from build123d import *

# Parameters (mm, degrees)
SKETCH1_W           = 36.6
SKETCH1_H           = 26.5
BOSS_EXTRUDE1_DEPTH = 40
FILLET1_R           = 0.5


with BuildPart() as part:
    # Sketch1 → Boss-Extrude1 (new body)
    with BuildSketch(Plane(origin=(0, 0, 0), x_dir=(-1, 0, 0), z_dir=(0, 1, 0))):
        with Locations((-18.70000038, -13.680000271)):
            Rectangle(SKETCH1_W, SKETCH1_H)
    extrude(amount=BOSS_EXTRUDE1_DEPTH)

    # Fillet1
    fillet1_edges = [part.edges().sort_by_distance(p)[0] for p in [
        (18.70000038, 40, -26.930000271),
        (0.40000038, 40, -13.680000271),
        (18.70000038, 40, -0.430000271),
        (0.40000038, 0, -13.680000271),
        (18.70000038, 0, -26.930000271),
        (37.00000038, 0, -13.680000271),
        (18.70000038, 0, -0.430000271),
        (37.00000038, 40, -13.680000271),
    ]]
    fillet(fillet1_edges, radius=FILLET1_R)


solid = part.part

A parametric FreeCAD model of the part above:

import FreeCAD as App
import Part
import Sketcher

V = App.Vector


def edges_at(feature, points):
    """Names of the edges that pass closest to the given points."""
    edges = feature.Shape.Edges
    near = lambda p: min(range(len(edges)), key=lambda i: edges[i].distToShape(Part.Vertex(*p))[0])
    return sorted({f"Edge{near(p) + 1}" for p in points})

doc = App.newDocument("Part")
body = doc.addObject("PartDesign::Body", "Body")

# Sketch on XZ plane
sketch1 = body.newObject("Sketcher::SketchObject", "Sketch")
sketch1.AttachmentSupport = (doc.getObject("XZ_Plane"), [""])
sketch1.MapMode = "FlatFace"
sketch1.addGeometry([
    Part.LineSegment(V(37, 0, 0), V(37, -27, 0)),
    Part.LineSegment(V(37, -27, 0), V(0, -27, 0)),
    Part.LineSegment(V(0, -27, 0), V(0, 0, 0)),
    Part.LineSegment(V(0, 0, 0), V(37, 0, 0)),
], False)
sketch1.addConstraint([
    Sketcher.Constraint("Coincident", 0, 2, 1, 1),
    Sketcher.Constraint("Coincident", 1, 2, 2, 1),
    Sketcher.Constraint("Coincident", 2, 2, 3, 1),
    Sketcher.Constraint("Coincident", 3, 2, 0, 1),
    Sketcher.Constraint("Vertical", 0),
    Sketcher.Constraint("Horizontal", 1),
    Sketcher.Constraint("Vertical", 2),
    Sketcher.Constraint("Horizontal", 3),
    Sketcher.Constraint("DistanceX", 1, 2, 1, 1, 36.6),
    Sketcher.Constraint("DistanceY", 0, 2, 0, 1, 26.5),
    Sketcher.Constraint("DistanceX", -1, 1, 0, 2, 37.0),
    Sketcher.Constraint("DistanceY", 0, 2, -1, 1, 26.93),
])
pad1 = body.newObject("PartDesign::Pad", "Pad")
pad1.Profile = sketch1
pad1.Length = 40
pad1.Reversed = True
doc.recompute()

fillet = body.newObject("PartDesign::Fillet", "Fillet")
fillet.Base = (pad1, edges_at(pad1, [
    (18.7, 40, -26.93),
    (0.4, 40, -13.68),
    (18.7, 40, -0.43),
    (0.4, 0, -13.68),
    (18.7, 0, -26.93),
    (37, 0, -13.68),
    (18.7, 0, -0.43),
    (37, 40, -13.68),
]))
fillet.Radius = 0.5

doc.recompute()
